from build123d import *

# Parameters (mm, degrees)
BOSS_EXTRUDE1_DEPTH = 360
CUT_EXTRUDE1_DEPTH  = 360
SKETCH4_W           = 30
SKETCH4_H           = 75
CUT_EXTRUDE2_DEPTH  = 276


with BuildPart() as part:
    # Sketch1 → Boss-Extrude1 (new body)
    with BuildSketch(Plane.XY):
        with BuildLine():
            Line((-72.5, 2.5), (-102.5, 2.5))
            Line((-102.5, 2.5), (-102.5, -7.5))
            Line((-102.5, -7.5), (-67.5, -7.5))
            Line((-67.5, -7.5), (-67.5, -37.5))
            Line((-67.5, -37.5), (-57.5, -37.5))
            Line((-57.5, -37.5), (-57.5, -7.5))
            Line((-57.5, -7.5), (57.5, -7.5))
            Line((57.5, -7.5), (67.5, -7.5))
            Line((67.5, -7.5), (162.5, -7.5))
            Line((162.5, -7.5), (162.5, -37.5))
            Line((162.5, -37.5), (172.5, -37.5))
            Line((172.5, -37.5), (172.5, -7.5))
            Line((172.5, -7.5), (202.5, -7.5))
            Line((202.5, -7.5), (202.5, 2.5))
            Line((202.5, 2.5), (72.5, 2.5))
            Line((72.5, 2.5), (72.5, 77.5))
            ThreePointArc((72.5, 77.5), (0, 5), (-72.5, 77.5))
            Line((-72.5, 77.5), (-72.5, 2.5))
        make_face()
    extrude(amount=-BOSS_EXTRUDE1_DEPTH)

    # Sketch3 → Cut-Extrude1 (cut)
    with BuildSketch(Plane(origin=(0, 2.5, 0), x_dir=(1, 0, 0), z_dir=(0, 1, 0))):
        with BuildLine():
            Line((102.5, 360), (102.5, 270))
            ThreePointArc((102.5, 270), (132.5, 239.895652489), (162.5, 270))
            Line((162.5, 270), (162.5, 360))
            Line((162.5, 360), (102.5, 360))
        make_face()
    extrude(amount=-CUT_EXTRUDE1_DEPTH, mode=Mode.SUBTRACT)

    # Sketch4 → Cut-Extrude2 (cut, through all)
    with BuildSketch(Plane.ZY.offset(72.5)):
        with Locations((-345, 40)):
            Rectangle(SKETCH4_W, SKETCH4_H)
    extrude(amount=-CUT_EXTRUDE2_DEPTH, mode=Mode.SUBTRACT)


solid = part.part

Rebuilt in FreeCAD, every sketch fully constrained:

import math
import FreeCAD as App
import Part
import Sketcher
Q = App.Units.Quantity

doc = App.newDocument("Part")
body = doc.addObject("PartDesign::Body", "Body")

sketch1 = body.newObject("Sketcher::SketchObject", "Sketch")
sketch1.AttachmentSupport = (doc.getObject("XY_Plane"), [""])
sketch1.MapMode = "FlatFace"
sketch1.addGeometry([
    Part.LineSegment(App.Vector(-72.5, 2.5, 0), App.Vector(-102.5, 2.5, 0)),
    Part.LineSegment(App.Vector(-102.5, 2.5, 0), App.Vector(-102.5, -7.5, 0)),
    Part.LineSegment(App.Vector(-102.5, -7.5, 0), App.Vector(-67.5, -7.5, 0)),
    Part.LineSegment(App.Vector(-67.5, -7.5, 0), App.Vector(-67.5, -37.5, 0)),
    Part.LineSegment(App.Vector(-67.5, -37.5, 0), App.Vector(-57.5, -37.5, 0)),
    Part.LineSegment(App.Vector(-57.5, -37.5, 0), App.Vector(-57.5, -7.5, 0)),
    Part.LineSegment(App.Vector(-57.5, -7.5, 0), App.Vector(162.5, -7.5, 0)),
    Part.LineSegment(App.Vector(162.5, -7.5, 0), App.Vector(162.5, -37.5, 0)),
    Part.LineSegment(App.Vector(162.5, -37.5, 0), App.Vector(172.5, -37.5, 0)),
    Part.LineSegment(App.Vector(172.5, -37.5, 0), App.Vector(172.5, -7.5, 0)),
    Part.LineSegment(App.Vector(172.5, -7.5, 0), App.Vector(202.5, -7.5, 0)),
    Part.LineSegment(App.Vector(202.5, -7.5, 0), App.Vector(202.5, 2.5, 0)),
    Part.LineSegment(App.Vector(202.5, 2.5, 0), App.Vector(72.5, 2.5, 0)),
    Part.LineSegment(App.Vector(72.5, 2.5, 0), App.Vector(72.5, 77.5, 0)),
    Part.ArcOfCircle(Part.Circle(App.Vector(0, 77.5, 0), App.Vector(0, 0, 1), 72.5), math.radians(180), math.radians(360)),
    Part.LineSegment(App.Vector(-72.5, 77.5, 0), App.Vector(-72.5, 2.5, 0)),
], False)
sketch1.addConstraint([
    Sketcher.Constraint("Coincident", 0, 2, 1, 1),
    Sketcher.Constraint("Coincident", 1, 2, 2, 1),
    Sketcher.Constraint("Coincident", 2, 2, 3, 1),
    Sketcher.Constraint("Coincident", 3, 2, 4, 1),
    Sketcher.Constraint("Coincident", 4, 2, 5, 1),
    Sketcher.Constraint("Coincident", 5, 2, 6, 1),
    Sketcher.Constraint("Coincident", 6, 2, 7, 1),
    Sketcher.Constraint("Coincident", 7, 2, 8, 1),
    Sketcher.Constraint("Coincident", 8, 2, 9, 1),
    Sketcher.Constraint("Coincident", 9, 2, 10, 1),
    Sketcher.Constraint("Coincident", 10, 2, 11, 1),
    Sketcher.Constraint("Coincident", 11, 2, 12, 1),
    Sketcher.Constraint("Coincident", 12, 2, 13, 1),
    Sketcher.Constraint("Tangent", 13, 2, 14, 2),
    Sketcher.Constraint("Tangent", 14, 1, 15, 1),
    Sketcher.Constraint("Coincident", 15, 2, 0, 1),
    Sketcher.Constraint("Horizontal", 0),
    Sketcher.Constraint("Vertical", 1),
    Sketcher.Constraint("Horizontal", 2),
    Sketcher.Constraint("Vertical", 3),
    Sketcher.Constraint("Horizontal", 4),
    Sketcher.Constraint("Vertical", 5),
    Sketcher.Constraint("Horizontal", 6),
    Sketcher.Constraint("Vertical", 7),
    Sketcher.Constraint("Horizontal", 8),
    Sketcher.Constraint("Vertical", 9),
    Sketcher.Constraint("Horizontal", 10),
    Sketcher.Constraint("Vertical", 11),
    Sketcher.Constraint("Horizontal", 12),
    Sketcher.Constraint("Vertical", 13),
    Sketcher.Constraint("Vertical", 15),
    Sketcher.Constraint("Symmetric", 12, 2, 15, 2, -2),
    Sketcher.Constraint("Horizontal", 2, 2, 5, 2),
    Sketcher.Constraint("Horizontal", 4, 2, 7, 2),
    Sketcher.Constraint("Horizontal", 6, 2, 9, 2),
    Sketcher.Constraint("Equal", 4, 8),
    Sketcher.Constraint("Equal", 0, 10),
    Sketcher.Constraint("Equal", 8, 1),
    Sketcher.Constraint("Equal", 10, 3),
    Sketcher.Constraint("Radius", 14, Q("72.5 mm")),
    Sketcher.Constraint("DistanceX", 0, 2, 0, 1, Q("30 mm")),
    Sketcher.Constraint("DistanceX", 2, 1, 2, 2, Q("35 mm")),
    Sketcher.Constraint("DistanceX", 4, 1, 4, 2, Q("10 mm")),
    Sketcher.Constraint("DistanceX", 6, 1, 6, 2, Q("220 mm")),
    Sketcher.Constraint("DistanceY", 13, 1, 13, 2, Q("75 mm")),
    Sketcher.Constraint("DistanceY", -1, 1, 14, 3, Q("77.5 mm")),
])
pad1 = body.newObject("PartDesign::Pad", "Pad")
pad1.Profile = sketch1
pad1.Length = 360
pad1.Reversed = True

sketch2 = body.newObject("Sketcher::SketchObject", "Sketch001")
sketch2.AttachmentSupport = (doc.getObject("XZ_Plane"), [""])
sketch2.MapMode = "FlatFace"
sketch2.AttachmentOffset = App.Placement(App.Vector(0, 0, -2.5), App.Rotation())
sketch2.addGeometry([
    Part.LineSegment(App.Vector(102.5, -360, 0), App.Vector(102.5, -270, 0)),
    Part.ArcOfCircle(Part.Circle(App.Vector(132.5, -269.895833, 0), App.Vector(0, 0, 1), 30.000181), math.radians(-0.198943), math.radians(180.198943)),
    Part.LineSegment(App.Vector(162.5, -270, 0), App.Vector(162.5, -360, 0)),
    Part.LineSegment(App.Vector(162.5, -360, 0), App.Vector(102.5, -360, 0)),
], False)
sketch2.addConstraint([
    Sketcher.Constraint("Coincident", 0, 2, 1, 2),
    Sketcher.Constraint("Coincident", 1, 1, 2, 1),
    Sketcher.Constraint("Coincident", 2, 2, 3, 1),
    Sketcher.Constraint("Coincident", 3, 2, 0, 1),
    Sketcher.Constraint("Vertical", 0),
    Sketcher.Constraint("Vertical", 2),
    Sketcher.Constraint("Horizontal", 3),
    Sketcher.Constraint("Horizontal", 0, 2, 1, 1),
    Sketcher.Constraint("DistanceX", 3, 2, 3, 1, Q("60 mm")),
    Sketcher.Constraint("DistanceY", 0, 1, 0, 2, Q("90 mm")),
    Sketcher.Constraint("DistanceY", 0, 2, -1, 1, Q("270 mm")),
    Sketcher.Constraint("DistanceX", -1, 1, 1, 3, Q("132.5 mm")),
    Sketcher.Constraint("Radius", 1, Q("30.000181 mm")),
])
pocket1 = body.newObject("PartDesign::Pocket", "Pocket")
pocket1.Profile = sketch2
pocket1.Length = 360
pocket1.Reversed = True

sketch3 = body.newObject("Sketcher::SketchObject", "Sketch002")
sketch3.AttachmentSupport = (doc.getObject("YZ_Plane"), [""])
sketch3.MapMode = "FlatFace"
sketch3.AttachmentOffset = App.Placement(App.Vector(0, 0, -72.5), App.Rotation())
sketch3.addGeometry([
    Part.LineSegment(App.Vector(77.5, -360, 0), App.Vector(2.5, -360, 0)),
    Part.LineSegment(App.Vector(2.5, -360, 0), App.Vector(2.5, -330, 0)),
    Part.LineSegment(App.Vector(2.5, -330, 0), App.Vector(77.5, -330, 0)),
    Part.LineSegment(App.Vector(77.5, -330, 0), App.Vector(77.5, -360, 0)),
], False)
sketch3.addConstraint([
    Sketcher.Constraint("Coincident", 0, 2, 1, 1),
    Sketcher.Constraint("Coincident", 1, 2, 2, 1),
    Sketcher.Constraint("Coincident", 2, 2, 3, 1),
    Sketcher.Constraint("Coincident", 3, 2, 0, 1),
    Sketcher.Constraint("Horizontal", 0),
    Sketcher.Constraint("Vertical", 1),
    Sketcher.Constraint("Horizontal", 2),
    Sketcher.Constraint("Vertical", 3),
    Sketcher.Constraint("DistanceX", 0, 2, 0, 1, Q("75 mm")),
    Sketcher.Constraint("DistanceY", 1, 1, 1, 2, Q("30 mm")),
    Sketcher.Constraint("DistanceY", 0, 2, -1, 1, Q("360 mm")),
    Sketcher.Constraint("DistanceX", -1, 1, 0, 2, Q("2.5 mm")),
])
pocket2 = body.newObject("PartDesign::Pocket", "Pocket001")
pocket2.Profile = sketch3
pocket2.Type = "ThroughAll"
pocket2.Reversed = True

doc.recompute()
